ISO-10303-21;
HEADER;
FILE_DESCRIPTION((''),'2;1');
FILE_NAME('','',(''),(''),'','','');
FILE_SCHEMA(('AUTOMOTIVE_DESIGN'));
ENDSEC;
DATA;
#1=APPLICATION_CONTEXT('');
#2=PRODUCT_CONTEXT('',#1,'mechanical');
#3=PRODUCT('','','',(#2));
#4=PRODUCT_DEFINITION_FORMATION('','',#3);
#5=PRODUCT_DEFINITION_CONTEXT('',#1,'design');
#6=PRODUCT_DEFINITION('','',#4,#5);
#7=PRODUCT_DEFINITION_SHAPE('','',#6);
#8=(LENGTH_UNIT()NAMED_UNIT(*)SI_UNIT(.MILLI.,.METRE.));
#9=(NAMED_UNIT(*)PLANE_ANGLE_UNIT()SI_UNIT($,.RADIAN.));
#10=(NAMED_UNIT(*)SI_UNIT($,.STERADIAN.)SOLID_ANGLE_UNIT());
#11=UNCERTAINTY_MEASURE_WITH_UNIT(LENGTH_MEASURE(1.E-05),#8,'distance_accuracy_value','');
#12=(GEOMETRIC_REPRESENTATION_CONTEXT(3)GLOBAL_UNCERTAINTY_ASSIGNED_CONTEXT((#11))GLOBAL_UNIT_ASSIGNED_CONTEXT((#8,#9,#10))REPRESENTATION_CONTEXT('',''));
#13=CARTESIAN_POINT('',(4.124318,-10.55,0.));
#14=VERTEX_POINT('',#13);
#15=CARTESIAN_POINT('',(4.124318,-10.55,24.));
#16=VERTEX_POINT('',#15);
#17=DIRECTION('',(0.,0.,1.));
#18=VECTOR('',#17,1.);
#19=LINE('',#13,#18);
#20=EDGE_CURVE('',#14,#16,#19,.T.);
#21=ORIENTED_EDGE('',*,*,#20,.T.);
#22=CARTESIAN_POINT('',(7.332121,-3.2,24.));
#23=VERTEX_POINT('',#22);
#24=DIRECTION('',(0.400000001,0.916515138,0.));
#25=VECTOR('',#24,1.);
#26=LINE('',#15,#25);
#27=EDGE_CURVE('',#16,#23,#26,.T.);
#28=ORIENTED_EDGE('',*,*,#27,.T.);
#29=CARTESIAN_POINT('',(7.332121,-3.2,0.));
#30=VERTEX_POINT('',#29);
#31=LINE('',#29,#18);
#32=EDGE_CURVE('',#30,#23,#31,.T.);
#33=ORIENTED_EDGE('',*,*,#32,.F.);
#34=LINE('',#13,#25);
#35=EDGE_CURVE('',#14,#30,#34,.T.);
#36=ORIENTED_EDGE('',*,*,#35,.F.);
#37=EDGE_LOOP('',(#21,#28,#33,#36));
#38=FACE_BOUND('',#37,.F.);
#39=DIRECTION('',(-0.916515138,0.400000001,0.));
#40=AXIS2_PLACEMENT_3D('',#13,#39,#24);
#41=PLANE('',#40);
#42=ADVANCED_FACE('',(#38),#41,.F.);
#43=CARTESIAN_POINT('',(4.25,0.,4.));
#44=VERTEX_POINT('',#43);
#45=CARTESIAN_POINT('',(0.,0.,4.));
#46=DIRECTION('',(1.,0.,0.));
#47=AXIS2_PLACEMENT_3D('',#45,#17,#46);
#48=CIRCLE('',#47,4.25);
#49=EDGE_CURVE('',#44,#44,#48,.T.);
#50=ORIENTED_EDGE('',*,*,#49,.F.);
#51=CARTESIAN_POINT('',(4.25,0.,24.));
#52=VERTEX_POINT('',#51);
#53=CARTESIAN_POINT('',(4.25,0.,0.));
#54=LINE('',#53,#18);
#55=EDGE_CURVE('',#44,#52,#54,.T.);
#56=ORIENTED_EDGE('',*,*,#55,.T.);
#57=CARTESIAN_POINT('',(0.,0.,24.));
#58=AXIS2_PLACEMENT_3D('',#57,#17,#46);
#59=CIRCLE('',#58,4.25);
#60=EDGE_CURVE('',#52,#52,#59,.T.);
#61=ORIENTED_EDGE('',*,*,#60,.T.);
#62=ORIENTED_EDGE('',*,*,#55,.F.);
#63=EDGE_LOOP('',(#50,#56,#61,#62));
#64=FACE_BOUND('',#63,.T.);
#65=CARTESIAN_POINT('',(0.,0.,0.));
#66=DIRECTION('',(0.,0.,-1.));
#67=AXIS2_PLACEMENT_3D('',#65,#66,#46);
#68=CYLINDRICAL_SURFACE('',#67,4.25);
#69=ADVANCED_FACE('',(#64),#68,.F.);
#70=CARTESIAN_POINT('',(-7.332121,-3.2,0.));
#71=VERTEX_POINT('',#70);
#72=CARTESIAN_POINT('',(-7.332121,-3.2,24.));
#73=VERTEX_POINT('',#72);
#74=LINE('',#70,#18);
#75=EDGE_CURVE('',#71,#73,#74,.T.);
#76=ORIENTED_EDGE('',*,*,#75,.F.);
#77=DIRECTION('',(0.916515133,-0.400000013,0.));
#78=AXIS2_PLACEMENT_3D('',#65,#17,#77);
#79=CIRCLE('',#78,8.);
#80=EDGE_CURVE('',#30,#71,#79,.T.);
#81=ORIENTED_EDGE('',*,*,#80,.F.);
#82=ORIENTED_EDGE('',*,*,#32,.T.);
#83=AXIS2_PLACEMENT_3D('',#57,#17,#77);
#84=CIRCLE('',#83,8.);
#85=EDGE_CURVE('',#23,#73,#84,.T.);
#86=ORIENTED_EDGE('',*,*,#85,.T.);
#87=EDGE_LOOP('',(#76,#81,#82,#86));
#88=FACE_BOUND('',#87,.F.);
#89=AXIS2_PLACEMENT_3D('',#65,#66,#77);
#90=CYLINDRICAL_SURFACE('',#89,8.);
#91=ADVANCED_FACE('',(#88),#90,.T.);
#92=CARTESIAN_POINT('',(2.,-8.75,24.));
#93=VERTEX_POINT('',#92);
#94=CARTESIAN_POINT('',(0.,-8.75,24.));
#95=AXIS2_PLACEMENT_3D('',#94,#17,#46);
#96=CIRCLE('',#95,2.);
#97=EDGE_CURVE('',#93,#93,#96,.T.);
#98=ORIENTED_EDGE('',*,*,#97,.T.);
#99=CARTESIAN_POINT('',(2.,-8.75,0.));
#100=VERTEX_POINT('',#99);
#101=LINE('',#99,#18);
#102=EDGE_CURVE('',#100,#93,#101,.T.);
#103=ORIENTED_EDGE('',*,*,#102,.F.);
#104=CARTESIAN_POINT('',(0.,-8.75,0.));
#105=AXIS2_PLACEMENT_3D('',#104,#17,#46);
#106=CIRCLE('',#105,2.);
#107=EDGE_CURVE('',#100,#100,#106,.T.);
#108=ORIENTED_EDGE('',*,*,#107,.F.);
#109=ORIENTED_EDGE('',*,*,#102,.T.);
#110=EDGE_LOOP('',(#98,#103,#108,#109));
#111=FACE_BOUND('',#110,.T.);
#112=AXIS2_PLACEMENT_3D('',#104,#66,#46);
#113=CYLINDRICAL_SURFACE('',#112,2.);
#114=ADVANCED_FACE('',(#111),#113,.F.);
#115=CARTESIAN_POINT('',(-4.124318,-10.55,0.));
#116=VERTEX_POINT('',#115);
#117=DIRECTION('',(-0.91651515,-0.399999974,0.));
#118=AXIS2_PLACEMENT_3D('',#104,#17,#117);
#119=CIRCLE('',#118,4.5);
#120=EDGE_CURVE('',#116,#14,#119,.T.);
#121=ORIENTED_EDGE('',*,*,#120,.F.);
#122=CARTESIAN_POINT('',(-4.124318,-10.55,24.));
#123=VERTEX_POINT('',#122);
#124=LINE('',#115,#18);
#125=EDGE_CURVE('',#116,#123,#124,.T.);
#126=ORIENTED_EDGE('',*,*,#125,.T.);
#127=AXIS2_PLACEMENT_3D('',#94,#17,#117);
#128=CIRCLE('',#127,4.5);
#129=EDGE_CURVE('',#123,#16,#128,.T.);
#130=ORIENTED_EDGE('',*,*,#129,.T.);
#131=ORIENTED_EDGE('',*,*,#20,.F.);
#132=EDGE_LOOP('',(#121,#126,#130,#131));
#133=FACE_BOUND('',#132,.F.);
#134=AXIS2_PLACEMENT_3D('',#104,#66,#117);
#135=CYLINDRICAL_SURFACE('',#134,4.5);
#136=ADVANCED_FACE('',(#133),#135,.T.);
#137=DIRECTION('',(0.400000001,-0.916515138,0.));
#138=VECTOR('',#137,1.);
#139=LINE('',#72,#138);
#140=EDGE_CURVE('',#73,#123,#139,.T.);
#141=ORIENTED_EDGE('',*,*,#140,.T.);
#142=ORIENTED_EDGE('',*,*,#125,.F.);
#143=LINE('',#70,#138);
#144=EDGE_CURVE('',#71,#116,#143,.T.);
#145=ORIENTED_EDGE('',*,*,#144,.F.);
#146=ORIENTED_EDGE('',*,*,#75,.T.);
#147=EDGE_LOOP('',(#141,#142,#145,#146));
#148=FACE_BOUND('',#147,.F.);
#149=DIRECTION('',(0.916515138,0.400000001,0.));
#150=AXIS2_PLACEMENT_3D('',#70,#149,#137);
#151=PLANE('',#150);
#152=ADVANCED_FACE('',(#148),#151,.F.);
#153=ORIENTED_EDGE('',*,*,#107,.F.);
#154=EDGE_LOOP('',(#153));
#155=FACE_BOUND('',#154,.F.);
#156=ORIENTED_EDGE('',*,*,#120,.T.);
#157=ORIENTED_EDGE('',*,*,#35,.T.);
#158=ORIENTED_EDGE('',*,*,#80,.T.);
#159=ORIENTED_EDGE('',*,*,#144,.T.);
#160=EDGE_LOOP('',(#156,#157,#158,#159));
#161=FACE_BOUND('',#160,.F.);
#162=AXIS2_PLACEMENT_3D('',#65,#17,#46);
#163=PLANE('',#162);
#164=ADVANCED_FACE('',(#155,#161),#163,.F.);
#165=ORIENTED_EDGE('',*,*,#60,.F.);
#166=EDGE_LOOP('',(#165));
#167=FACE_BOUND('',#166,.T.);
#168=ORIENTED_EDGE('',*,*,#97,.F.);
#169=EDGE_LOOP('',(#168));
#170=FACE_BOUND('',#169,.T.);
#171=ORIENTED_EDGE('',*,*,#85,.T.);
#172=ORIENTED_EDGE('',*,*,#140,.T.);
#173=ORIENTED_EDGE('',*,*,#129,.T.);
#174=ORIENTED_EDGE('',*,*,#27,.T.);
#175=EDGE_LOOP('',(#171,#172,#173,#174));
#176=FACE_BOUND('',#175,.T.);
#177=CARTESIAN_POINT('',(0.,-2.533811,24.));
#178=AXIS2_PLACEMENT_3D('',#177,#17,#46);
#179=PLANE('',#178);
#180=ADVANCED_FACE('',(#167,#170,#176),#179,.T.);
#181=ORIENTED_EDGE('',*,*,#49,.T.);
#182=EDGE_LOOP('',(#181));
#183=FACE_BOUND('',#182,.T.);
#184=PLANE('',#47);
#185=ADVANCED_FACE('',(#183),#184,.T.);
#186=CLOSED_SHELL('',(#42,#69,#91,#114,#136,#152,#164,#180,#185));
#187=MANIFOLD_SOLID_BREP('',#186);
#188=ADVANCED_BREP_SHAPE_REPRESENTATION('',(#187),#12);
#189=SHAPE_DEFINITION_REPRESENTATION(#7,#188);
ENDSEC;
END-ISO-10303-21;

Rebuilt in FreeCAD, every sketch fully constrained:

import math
import FreeCAD as App
import Part
import Sketcher
Q = App.Units.Quantity

doc = App.newDocument("Part")
body = doc.addObject("PartDesign::Body", "Body")

# Sketch on XY plane
sketch1 = body.newObject("Sketcher::SketchObject", "Sketch")
sketch1.AttachmentSupport = (doc.getObject("XY_Plane"), [""])
sketch1.MapMode = "FlatFace"
sketch1.addGeometry(Part.LineSegment(App.Vector(4.1, -10.6, 0), App.Vector(7.3, -3.2, 0)), False)
sketch1.addGeometry(Part.ArcOfCircle(Part.Circle(App.Vector(0, 0, 0), App.Vector(0, 0, 1), 8), math.radians(-24), math.radians(204)), False)
sketch1.addGeometry(Part.LineSegment(App.Vector(-7.3, -3.2, 0), App.Vector(-4.1, -10.6, 0)), False)
sketch1.addGeometry(Part.ArcOfCircle(Part.Circle(App.Vector(0, -8.8, 0), App.Vector(0, 0, 1), 4.5), math.radians(-156), math.radians(-24)), False)
sketch1.addGeometry(Part.Circle(App.Vector(0, -8.8, 0), App.Vector(0, 0, 1), 2), False)
sketch1.addGeometry(Part.Circle(App.Vector(0, 0, 0), App.Vector(0, 0, 1), 4.2), False)
sketch1.addConstraint(Sketcher.Constraint("Tangent", 0, 2, 1, 1))
sketch1.addConstraint(Sketcher.Constraint("Tangent", 1, 2, 2, 1))
sketch1.addConstraint(Sketcher.Constraint("Tangent", 2, 2, 3, 1))
sketch1.addConstraint(Sketcher.Constraint("Tangent", 3, 2, 0, 1))
sketch1.addConstraint(Sketcher.Constraint("Coincident", 1, 3, -1, 1))
sketch1.addConstraint(Sketcher.Constraint("Coincident", 5, 3, -1, 1))
sketch1.addConstraint(Sketcher.Constraint("Coincident", 4, 3, 3, 3))
sketch1.addConstraint(Sketcher.Constraint("PointOnObject", 3, 3, -2))
sketch1.addConstraint(Sketcher.Constraint("Diameter", 4, Q("4 mm")))
sketch1.addConstraint(Sketcher.Constraint("Radius", 1, Q("8 mm")))
sketch1.addConstraint(Sketcher.Constraint("Diameter", 5, Q("8.5 mm")))
sketch1.addConstraint(Sketcher.Constraint("Radius", 3, Q("4.5 mm")))
sketch1.addConstraint(Sketcher.Constraint("DistanceY", 0, 2, -1, 1, Q("3.2 mm")))
pad1 = body.newObject("PartDesign::Pad", "Pad")
pad1.Profile = sketch1
pad1.Length = 24

# Sketch on XY plane
sketch2 = body.newObject("Sketcher::SketchObject", "Sketch001")
sketch2.AttachmentSupport = (doc.getObject("XY_Plane"), [""])
sketch2.MapMode = "FlatFace"
sketch2.addGeometry(Part.Circle(App.Vector(0, 0, 0), App.Vector(0, 0, 1), 4.2), False)
sketch2.addConstraint(Sketcher.Constraint("Coincident", 0, 3, -1, 1))
sketch2.addConstraint(Sketcher.Constraint("Diameter", 0, Q("8.5 mm")))
pad2 = body.newObject("PartDesign::Pad", "Pad001")
pad2.Profile = sketch2
pad2.Length = 4

doc.recompute()
